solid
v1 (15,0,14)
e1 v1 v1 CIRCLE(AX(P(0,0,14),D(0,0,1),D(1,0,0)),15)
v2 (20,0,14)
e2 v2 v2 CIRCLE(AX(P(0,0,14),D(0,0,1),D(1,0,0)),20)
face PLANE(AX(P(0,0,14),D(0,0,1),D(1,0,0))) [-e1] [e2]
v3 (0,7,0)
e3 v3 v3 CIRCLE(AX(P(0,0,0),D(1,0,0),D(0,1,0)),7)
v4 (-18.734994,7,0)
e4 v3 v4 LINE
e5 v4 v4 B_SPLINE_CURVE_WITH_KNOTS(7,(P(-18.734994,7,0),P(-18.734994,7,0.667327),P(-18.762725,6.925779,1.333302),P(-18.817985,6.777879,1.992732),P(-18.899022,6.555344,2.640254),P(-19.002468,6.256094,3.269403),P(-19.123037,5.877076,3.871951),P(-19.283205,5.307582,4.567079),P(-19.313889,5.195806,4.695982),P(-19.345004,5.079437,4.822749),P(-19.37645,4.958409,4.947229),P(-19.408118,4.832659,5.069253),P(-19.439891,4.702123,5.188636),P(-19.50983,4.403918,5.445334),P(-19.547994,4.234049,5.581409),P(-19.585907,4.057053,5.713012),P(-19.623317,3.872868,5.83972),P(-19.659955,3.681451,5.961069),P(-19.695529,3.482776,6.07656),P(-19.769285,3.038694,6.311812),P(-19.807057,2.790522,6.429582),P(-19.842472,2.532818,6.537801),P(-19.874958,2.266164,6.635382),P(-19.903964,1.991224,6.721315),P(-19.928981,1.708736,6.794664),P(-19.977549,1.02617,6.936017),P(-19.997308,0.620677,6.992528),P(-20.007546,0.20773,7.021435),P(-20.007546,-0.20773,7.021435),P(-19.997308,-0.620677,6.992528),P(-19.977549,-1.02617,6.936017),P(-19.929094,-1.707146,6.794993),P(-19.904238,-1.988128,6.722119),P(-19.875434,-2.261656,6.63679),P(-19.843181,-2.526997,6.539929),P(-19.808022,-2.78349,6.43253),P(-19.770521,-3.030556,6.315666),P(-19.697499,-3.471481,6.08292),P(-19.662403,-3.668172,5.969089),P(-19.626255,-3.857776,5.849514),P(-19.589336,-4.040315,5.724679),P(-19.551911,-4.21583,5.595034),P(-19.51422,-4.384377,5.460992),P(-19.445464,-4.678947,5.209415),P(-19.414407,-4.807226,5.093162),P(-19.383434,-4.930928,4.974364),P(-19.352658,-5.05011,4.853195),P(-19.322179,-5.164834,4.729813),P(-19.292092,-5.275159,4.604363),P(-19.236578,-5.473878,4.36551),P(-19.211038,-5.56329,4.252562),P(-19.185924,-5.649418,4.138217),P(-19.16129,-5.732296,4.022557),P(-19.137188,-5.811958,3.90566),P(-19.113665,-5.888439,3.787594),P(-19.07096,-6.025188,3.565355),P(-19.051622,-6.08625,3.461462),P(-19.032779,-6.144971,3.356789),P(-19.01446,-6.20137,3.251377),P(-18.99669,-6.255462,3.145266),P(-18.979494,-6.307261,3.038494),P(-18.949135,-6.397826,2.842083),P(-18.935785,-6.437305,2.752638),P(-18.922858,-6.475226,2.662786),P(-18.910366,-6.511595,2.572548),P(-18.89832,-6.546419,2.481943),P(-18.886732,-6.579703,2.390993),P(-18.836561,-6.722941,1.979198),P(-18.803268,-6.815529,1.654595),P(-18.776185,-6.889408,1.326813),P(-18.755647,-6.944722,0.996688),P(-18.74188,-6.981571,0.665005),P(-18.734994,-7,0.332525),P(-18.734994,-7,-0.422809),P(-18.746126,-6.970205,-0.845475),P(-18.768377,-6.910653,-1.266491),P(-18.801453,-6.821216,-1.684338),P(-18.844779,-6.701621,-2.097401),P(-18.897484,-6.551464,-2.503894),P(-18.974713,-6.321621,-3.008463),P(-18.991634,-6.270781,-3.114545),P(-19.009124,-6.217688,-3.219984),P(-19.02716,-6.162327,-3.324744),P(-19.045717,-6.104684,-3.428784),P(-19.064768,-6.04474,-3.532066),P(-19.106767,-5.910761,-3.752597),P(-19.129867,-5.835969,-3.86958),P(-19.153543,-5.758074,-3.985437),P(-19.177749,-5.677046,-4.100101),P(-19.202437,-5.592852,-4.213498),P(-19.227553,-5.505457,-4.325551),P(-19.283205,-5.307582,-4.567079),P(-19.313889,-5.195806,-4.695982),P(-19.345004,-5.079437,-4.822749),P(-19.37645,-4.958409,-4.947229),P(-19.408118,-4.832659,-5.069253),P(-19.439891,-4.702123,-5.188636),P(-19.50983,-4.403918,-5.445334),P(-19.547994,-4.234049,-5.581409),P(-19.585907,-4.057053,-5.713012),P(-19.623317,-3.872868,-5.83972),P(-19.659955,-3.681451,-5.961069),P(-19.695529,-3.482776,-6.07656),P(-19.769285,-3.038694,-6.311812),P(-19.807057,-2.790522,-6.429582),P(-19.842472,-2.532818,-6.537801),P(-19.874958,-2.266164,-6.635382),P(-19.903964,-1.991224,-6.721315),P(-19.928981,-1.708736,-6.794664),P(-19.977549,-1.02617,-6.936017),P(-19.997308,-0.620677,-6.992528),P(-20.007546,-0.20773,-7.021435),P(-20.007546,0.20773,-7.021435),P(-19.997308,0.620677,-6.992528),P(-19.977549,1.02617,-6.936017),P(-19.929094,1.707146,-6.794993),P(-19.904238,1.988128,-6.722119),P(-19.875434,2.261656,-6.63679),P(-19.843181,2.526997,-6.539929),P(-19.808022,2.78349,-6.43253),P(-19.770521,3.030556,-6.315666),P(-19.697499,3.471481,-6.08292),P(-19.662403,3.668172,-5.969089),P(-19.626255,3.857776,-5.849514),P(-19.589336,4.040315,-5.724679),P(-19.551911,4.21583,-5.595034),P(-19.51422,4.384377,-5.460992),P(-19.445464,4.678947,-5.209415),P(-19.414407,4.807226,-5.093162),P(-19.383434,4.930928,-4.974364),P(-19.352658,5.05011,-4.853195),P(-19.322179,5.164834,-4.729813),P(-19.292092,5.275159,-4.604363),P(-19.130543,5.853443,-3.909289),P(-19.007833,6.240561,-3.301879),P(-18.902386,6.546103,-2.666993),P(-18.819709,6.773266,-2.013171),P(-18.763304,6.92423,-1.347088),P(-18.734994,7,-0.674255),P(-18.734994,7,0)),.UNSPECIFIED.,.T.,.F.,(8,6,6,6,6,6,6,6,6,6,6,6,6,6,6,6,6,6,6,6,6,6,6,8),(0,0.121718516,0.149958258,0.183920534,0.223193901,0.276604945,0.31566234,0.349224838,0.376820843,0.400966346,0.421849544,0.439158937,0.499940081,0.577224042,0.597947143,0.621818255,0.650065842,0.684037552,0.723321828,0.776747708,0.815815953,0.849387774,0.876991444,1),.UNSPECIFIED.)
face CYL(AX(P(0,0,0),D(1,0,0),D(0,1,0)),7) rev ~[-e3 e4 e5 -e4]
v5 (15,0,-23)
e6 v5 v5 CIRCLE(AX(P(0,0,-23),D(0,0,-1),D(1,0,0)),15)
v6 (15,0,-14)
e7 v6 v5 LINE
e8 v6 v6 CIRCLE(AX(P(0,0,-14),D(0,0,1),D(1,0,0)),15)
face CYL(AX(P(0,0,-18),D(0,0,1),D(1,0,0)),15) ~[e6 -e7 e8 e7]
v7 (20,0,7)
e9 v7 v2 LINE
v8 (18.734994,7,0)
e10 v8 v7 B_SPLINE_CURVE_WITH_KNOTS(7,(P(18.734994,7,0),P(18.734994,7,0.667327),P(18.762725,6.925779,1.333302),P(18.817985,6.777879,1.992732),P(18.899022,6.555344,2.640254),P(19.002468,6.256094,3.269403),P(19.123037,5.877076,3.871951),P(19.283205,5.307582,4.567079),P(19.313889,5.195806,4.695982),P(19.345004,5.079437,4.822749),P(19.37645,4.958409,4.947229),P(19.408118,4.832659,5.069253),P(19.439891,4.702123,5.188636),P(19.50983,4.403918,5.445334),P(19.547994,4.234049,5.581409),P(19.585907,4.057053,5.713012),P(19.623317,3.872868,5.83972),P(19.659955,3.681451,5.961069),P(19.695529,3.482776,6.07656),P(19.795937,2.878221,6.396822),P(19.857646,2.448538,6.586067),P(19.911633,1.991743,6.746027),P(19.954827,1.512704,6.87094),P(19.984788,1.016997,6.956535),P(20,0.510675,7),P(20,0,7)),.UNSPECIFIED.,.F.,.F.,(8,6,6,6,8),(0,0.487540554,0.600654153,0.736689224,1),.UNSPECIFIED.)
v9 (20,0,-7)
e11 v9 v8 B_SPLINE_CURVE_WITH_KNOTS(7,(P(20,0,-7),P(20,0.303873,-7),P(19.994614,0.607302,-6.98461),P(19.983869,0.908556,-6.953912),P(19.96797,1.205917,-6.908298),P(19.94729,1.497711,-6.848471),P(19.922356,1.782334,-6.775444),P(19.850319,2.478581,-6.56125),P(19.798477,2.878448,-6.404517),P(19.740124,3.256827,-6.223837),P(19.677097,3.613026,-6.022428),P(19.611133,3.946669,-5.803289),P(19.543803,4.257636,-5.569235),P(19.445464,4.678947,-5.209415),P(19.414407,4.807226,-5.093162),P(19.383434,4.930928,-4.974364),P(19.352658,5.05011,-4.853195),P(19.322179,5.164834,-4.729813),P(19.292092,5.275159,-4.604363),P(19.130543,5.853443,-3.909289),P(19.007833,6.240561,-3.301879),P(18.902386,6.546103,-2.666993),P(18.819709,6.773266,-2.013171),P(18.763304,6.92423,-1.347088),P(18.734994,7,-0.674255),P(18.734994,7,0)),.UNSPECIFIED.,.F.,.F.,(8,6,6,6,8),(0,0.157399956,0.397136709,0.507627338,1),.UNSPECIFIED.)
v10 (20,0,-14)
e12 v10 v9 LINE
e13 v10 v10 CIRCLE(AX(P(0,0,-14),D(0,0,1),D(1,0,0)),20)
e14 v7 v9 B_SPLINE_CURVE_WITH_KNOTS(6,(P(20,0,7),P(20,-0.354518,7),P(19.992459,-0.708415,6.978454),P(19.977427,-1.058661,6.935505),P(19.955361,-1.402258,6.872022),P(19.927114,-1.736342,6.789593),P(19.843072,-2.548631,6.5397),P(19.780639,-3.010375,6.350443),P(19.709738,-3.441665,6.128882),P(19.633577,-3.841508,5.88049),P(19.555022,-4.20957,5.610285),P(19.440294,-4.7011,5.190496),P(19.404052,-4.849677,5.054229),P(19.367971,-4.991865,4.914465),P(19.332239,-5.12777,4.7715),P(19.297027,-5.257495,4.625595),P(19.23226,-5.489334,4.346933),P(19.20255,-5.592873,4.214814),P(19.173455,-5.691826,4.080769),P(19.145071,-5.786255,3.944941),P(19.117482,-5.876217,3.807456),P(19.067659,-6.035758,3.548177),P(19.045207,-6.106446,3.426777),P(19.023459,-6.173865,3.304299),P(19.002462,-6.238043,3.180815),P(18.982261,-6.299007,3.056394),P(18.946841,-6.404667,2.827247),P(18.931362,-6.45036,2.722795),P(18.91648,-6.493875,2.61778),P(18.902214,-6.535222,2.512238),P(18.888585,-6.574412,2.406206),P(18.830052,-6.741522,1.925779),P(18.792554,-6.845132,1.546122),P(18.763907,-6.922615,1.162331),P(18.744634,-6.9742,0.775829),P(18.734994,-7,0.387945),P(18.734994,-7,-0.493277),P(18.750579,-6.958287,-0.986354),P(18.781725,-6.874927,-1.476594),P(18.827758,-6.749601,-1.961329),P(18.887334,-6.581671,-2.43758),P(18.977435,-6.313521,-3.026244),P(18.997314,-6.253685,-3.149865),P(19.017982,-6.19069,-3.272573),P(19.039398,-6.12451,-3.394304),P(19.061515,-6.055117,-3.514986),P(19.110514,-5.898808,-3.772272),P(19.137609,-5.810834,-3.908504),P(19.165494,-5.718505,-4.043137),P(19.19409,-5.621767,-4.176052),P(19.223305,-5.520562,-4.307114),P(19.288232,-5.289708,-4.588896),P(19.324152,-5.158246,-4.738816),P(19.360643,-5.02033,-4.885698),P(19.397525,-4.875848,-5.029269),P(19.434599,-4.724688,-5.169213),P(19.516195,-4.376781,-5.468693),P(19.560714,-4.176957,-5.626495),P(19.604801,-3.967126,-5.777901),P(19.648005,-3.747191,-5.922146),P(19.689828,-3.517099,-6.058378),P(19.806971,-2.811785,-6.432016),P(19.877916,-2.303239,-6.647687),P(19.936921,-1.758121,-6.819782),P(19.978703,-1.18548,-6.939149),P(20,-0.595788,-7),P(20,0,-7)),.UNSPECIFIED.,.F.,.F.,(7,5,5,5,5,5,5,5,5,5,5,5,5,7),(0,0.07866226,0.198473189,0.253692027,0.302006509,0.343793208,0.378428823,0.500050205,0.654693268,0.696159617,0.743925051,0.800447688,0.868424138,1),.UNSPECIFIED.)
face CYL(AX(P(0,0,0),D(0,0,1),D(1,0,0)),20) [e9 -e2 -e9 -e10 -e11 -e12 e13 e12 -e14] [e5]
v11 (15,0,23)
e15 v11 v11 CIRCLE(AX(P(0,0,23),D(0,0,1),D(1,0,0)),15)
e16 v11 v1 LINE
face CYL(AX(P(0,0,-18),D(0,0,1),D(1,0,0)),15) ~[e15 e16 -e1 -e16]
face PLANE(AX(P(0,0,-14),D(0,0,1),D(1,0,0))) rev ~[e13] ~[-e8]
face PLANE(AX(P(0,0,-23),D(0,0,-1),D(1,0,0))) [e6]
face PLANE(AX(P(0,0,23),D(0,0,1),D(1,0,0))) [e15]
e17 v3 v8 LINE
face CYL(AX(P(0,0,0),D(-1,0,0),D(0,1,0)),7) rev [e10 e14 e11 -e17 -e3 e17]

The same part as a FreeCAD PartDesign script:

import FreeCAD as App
import Part
import Sketcher

doc = App.newDocument("Part")
body = doc.addObject("PartDesign::Body", "Body")

sketch1 = body.newObject("Sketcher::SketchObject", "Sketch")
sketch1.AttachmentSupport = (doc.getObject("XY_Plane"), [""])
sketch1.MapMode = "FlatFace"
sketch1.addGeometry(Part.Circle(App.Vector(0, 0, 0), App.Vector(0, 0, 1), 15), False)
sketch1.addConstraint([
    Sketcher.Constraint("Coincident", 0, 3, -1, 1),
    Sketcher.Constraint("Diameter", 0, 30.0),
])
pad1 = body.newObject("PartDesign::Pad", "Pad")
pad1.Profile = sketch1
pad1.Length = 36
pad1.Midplane = True

sketch2 = body.newObject("Sketcher::SketchObject", "Sketch001")
sketch2.AttachmentSupport = (doc.getObject("XY_Plane"), [""])
sketch2.MapMode = "FlatFace"
sketch2.AttachmentOffset = App.Placement(App.Vector(0, 0, 18), App.Rotation())
sketch2.addGeometry(Part.Circle(App.Vector(0, 0, 0), App.Vector(0, 0, 1), 15), False)
sketch2.addConstraint([
    Sketcher.Constraint("Coincident", 0, 3, -1, 1),
    Sketcher.Constraint("Diameter", 0, 30.0),
])
pad2 = body.newObject("PartDesign::Pad", "Pad001")
pad2.Profile = sketch2
pad2.Length = 5

sketch3 = body.newObject("Sketcher::SketchObject", "Sketch002")
sketch3.AttachmentSupport = (doc.getObject("XY_Plane"), [""])
sketch3.MapMode = "FlatFace"
sketch3.AttachmentOffset = App.Placement(App.Vector(0, 0, -18), App.Rotation())
sketch3.addGeometry(Part.Circle(App.Vector(0, 0, 0), App.Vector(0, 0, 1), 15), False)
sketch3.addConstraint([
    Sketcher.Constraint("Coincident", 0, 3, -1, 1),
    Sketcher.Constraint("Diameter", 0, 30.0),
])
pad3 = body.newObject("PartDesign::Pad", "Pad002")
pad3.Profile = sketch3
pad3.Length = 5
pad3.Reversed = True

sketch4 = body.newObject("Sketcher::SketchObject", "Sketch003")
sketch4.AttachmentSupport = (doc.getObject("XY_Plane"), [""])
sketch4.MapMode = "FlatFace"
sketch4.addGeometry(Part.Circle(App.Vector(0, 0, 0), App.Vector(0, 0, 1), 20), False)
sketch4.addConstraint([
    Sketcher.Constraint("Coincident", 0, 3, -1, 1),
    Sketcher.Constraint("Diameter", 0, 40.0),
])
pad4 = body.newObject("PartDesign::Pad", "Pad003")
pad4.Profile = sketch4
pad4.Type = "TwoLengths"
pad4.Length = 14
pad4.Length2 = 14

sketch5 = body.newObject("Sketcher::SketchObject", "Sketch004")
sketch5.AttachmentSupport = (doc.getObject("YZ_Plane"), [""])
sketch5.MapMode = "FlatFace"
sketch5.addGeometry(Part.Circle(App.Vector(0, 0, 0), App.Vector(0, 0, 1), 7), False)
sketch5.addConstraint([
    Sketcher.Constraint("Coincident", 0, 3, -1, 1),
    Sketcher.Constraint("Diameter", 0, 14.0),
])
pocket1 = body.newObject("PartDesign::Pocket", "Pocket")
pocket1.Profile = sketch5
pocket1.Type = "ThroughAll"
pocket1.Midplane = True

doc.recompute()
